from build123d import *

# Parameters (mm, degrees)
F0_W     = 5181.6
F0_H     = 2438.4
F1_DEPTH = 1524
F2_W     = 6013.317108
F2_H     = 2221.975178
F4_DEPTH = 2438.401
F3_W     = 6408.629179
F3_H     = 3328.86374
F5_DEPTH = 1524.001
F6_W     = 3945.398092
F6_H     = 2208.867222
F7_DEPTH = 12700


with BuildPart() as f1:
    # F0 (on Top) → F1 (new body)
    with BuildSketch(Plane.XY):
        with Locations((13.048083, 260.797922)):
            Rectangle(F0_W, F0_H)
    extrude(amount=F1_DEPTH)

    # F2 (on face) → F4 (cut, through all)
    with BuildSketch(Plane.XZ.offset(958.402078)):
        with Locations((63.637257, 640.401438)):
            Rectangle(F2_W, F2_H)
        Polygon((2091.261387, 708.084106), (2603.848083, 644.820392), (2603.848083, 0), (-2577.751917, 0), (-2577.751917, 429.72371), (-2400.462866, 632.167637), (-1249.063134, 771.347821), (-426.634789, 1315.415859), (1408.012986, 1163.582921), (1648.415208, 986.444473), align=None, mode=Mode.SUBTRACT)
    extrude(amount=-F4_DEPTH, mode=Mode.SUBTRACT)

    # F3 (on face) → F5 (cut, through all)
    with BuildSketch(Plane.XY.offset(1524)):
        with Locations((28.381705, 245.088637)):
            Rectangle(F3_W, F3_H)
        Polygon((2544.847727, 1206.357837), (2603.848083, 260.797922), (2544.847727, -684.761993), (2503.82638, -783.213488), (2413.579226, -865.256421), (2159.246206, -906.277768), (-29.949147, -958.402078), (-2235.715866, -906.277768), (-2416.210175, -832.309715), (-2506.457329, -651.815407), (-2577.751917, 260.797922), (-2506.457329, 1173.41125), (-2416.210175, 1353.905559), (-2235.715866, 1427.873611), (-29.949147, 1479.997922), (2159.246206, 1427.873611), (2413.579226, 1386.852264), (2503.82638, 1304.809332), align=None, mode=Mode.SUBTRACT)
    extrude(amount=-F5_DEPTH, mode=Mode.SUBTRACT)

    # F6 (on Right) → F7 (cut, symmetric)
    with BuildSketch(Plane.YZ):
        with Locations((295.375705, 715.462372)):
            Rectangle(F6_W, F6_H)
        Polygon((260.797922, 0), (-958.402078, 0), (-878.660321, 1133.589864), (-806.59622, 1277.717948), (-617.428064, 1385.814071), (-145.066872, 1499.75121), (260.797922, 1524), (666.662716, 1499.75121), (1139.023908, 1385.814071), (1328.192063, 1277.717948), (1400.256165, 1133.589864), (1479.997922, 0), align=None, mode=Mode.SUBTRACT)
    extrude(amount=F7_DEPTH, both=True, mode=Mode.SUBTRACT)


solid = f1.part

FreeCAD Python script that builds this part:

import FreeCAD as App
import Part
import Sketcher

V = App.Vector
Q = App.Units.Quantity

doc = App.newDocument("Part")
body = doc.addObject("PartDesign::Body", "Body")

# Sketch on XY plane
sketch1 = doc.addObject("Sketcher::SketchObject", "Sketch")
body.addObject(sketch1)
sketch1.AttachmentSupport = (doc.XY_Plane, [""])
sketch1.MapMode = "FlatFace"
sketch1.addGeometry(Part.LineSegment(V(-2578, 1480, 0), V(-2578, -958, 0)), False)
sketch1.addGeometry(Part.LineSegment(V(-2578, -958, 0), V(2604, -958, 0)), False)
sketch1.addGeometry(Part.LineSegment(V(2604, -958, 0), V(2604, 1480, 0)), False)
sketch1.addGeometry(Part.LineSegment(V(2604, 1480, 0), V(-2578, 1480, 0)), False)
sketch1.addConstraint(Sketcher.Constraint("Coincident", 0, 2, 1, 1))
sketch1.addConstraint(Sketcher.Constraint("Coincident", 1, 2, 2, 1))
sketch1.addConstraint(Sketcher.Constraint("Coincident", 2, 2, 3, 1))
sketch1.addConstraint(Sketcher.Constraint("Coincident", 3, 2, 0, 1))
sketch1.addConstraint(Sketcher.Constraint("Vertical", 0))
sketch1.addConstraint(Sketcher.Constraint("Horizontal", 1))
sketch1.addConstraint(Sketcher.Constraint("Vertical", 2))
sketch1.addConstraint(Sketcher.Constraint("Horizontal", 3))
sketch1.addConstraint(Sketcher.Constraint("DistanceX", 1, 1, 1, 2, Q("204 in")))
sketch1.addConstraint(Sketcher.Constraint("DistanceY", 0, 2, 0, 1, Q("96 in")))
sketch1.addConstraint(Sketcher.Constraint("DistanceY", 0, 2, -1, 1, 958.402078))
sketch1.addConstraint(Sketcher.Constraint("DistanceX", 0, 2, -1, 1, 2577.751917))
pad1 = doc.addObject("PartDesign::Pad", "Pad")
body.addObject(pad1)
pad1.Profile = sketch1
pad1.Length = Q("60 in")

# Sketch on XZ plane
sketch2 = doc.addObject("Sketcher::SketchObject", "Sketch001")
body.addObject(sketch2)
sketch2.AttachmentSupport = (doc.XZ_Plane, [""])
sketch2.MapMode = "FlatFace"
sketch2.AttachmentOffset = App.Placement(V(0, 0, 958.402078), App.Rotation())
sketch2.addGeometry(Part.LineSegment(V(-2943, 1751, 0), V(-2943, -471, 0)), False)
sketch2.addGeometry(Part.LineSegment(V(-2943, -471, 0), V(3070, -471, 0)), False)
sketch2.addGeometry(Part.LineSegment(V(3070, -471, 0), V(3070, 1751, 0)), False)
sketch2.addGeometry(Part.LineSegment(V(3070, 1751, 0), V(-2943, 1751, 0)), False)
sketch2.addGeometry(Part.LineSegment(V(1648, 986, 0), V(2091, 708, 0)), False)
sketch2.addGeometry(Part.LineSegment(V(2091, 708, 0), V(2604, 645, 0)), False)
sketch2.addGeometry(Part.LineSegment(V(2604, 645, 0), V(2604, 0, 0)), False)
sketch2.addGeometry(Part.LineSegment(V(2604, 0, 0), V(-2578, 0, 0)), False)
sketch2.addGeometry(Part.LineSegment(V(-2578, 0, 0), V(-2578, 430, 0)), False)
sketch2.addGeometry(Part.LineSegment(V(-2578, 430, 0), V(-2400, 632, 0)), False)
sketch2.addGeometry(Part.LineSegment(V(-2400, 632, 0), V(-1249, 771, 0)), False)
sketch2.addGeometry(Part.LineSegment(V(-1249, 771, 0), V(-427, 1315, 0)), False)
sketch2.addGeometry(Part.LineSegment(V(-427, 1315, 0), V(1408, 1164, 0)), False)
sketch2.addGeometry(Part.LineSegment(V(1408, 1164, 0), V(1648, 986, 0)), False)
sketch2.addConstraint(Sketcher.Constraint("Coincident", 0, 2, 1, 1))
sketch2.addConstraint(Sketcher.Constraint("Coincident", 1, 2, 2, 1))
sketch2.addConstraint(Sketcher.Constraint("Coincident", 2, 2, 3, 1))
sketch2.addConstraint(Sketcher.Constraint("Coincident", 3, 2, 0, 1))
sketch2.addConstraint(Sketcher.Constraint("Coincident", 4, 2, 5, 1))
sketch2.addConstraint(Sketcher.Constraint("Coincident", 5, 2, 6, 1))
sketch2.addConstraint(Sketcher.Constraint("Coincident", 6, 2, 7, 1))
sketch2.addConstraint(Sketcher.Constraint("Coincident", 7, 2, 8, 1))
sketch2.addConstraint(Sketcher.Constraint("Coincident", 8, 2, 9, 1))
sketch2.addConstraint(Sketcher.Constraint("Coincident", 9, 2, 10, 1))
sketch2.addConstraint(Sketcher.Constraint("Coincident", 10, 2, 11, 1))
sketch2.addConstraint(Sketcher.Constraint("Coincident", 11, 2, 12, 1))
sketch2.addConstraint(Sketcher.Constraint("Coincident", 12, 2, 13, 1))
sketch2.addConstraint(Sketcher.Constraint("Coincident", 13, 2, 4, 1))
sketch2.addConstraint(Sketcher.Constraint("Vertical", 0))
sketch2.addConstraint(Sketcher.Constraint("Horizontal", 1))
sketch2.addConstraint(Sketcher.Constraint("Vertical", 2))
sketch2.addConstraint(Sketcher.Constraint("Horizontal", 3))
sketch2.addConstraint(Sketcher.Constraint("Vertical", 6))
sketch2.addConstraint(Sketcher.Constraint("Horizontal", 7))
sketch2.addConstraint(Sketcher.Constraint("Vertical", 8))
sketch2.addConstraint(Sketcher.Constraint("PointOnObject", 6, 2, -1))
sketch2.addConstraint(Sketcher.Constraint("DistanceX", 7, 2, 7, 1, Q("204 in")))
sketch2.addConstraint(Sketcher.Constraint("DistanceY", 6, 2, 6, 1, 644.820392))
sketch2.addConstraint(Sketcher.Constraint("DistanceY", 8, 1, 8, 2, 429.72371))
sketch2.addConstraint(Sketcher.Constraint("DistanceX", 12, 2, 4, 2, 683.248401))
sketch2.addConstraint(Sketcher.Constraint("Distance", 5, 516.475961))
sketch2.addConstraint(Sketcher.Constraint("Distance", 13, 298.615569))
sketch2.addConstraint(Sketcher.Constraint("DistanceX", 1, 1, 1, 2, 6013.317108))
sketch2.addConstraint(Sketcher.Constraint("DistanceY", 0, 2, 0, 1, 2221.975178))
sketch2.addConstraint(Sketcher.Constraint("DistanceY", 0, 2, -1, 1, 470.586151))
sketch2.addConstraint(Sketcher.Constraint("DistanceX", -1, 1, 1, 2, 3070.295811))
sketch2.addConstraint(Sketcher.Constraint("DistanceY", -1, 1, 10, 2, 771.347821))
sketch2.addConstraint(Sketcher.Constraint("DistanceX", 11, 2, -1, 1, 426.634789))
sketch2.addConstraint(Sketcher.Constraint("DistanceY", -1, 1, 11, 2, 1315.415859))
sketch2.addConstraint(Sketcher.Constraint("DistanceY", -1, 1, 12, 2, 1163.582921))
sketch2.addConstraint(Sketcher.Constraint("DistanceX", -1, 1, 13, 2, 1648.415208))
sketch2.addConstraint(Sketcher.Constraint("DistanceY", 4, 2, 2, 2, 1043.304921))
sketch2.addConstraint(Sketcher.Constraint("DistanceX", 5, 2, 2, 2, 466.447728))
sketch2.addConstraint(Sketcher.Constraint("DistanceX", 8, 2, 9, 2, 177.289051))
sketch2.addConstraint(Sketcher.Constraint("DistanceY", 0, 2, 9, 2, 1102.753788))
sketch2.addConstraint(Sketcher.Constraint("DistanceX", 9, 2, 10, 2, 1151.399732))
pocket1 = doc.addObject("PartDesign::Pocket", "Pocket")
body.addObject(pocket1)
pocket1.Profile = sketch2
pocket1.Type = "ThroughAll"

# Sketch on XY plane
sketch3 = doc.addObject("Sketcher::SketchObject", "Sketch002")
body.addObject(sketch3)
sketch3.AttachmentSupport = (doc.XY_Plane, [""])
sketch3.MapMode = "FlatFace"
sketch3.AttachmentOffset = App.Placement(V(0, 0, 60 * 25.4), App.Rotation())
sketch3.addGeometry(Part.LineSegment(V(-3176, 1910, 0), V(-3176, -1419, 0)), False)
sketch3.addGeometry(Part.LineSegment(V(-3176, -1419, 0), V(3233, -1419, 0)), False)
sketch3.addGeometry(Part.LineSegment(V(3233, -1419, 0), V(3233, 1910, 0)), False)
sketch3.addGeometry(Part.LineSegment(V(3233, 1910, 0), V(-3176, 1910, 0)), False)
sketch3.addGeometry(Part.LineSegment(V(2504, 1305, 0), V(2545, 1206, 0)), False)
sketch3.addGeometry(Part.LineSegment(V(2545, 1206, 0), V(2604, 261, 0)), False)
sketch3.addGeometry(Part.LineSegment(V(2604, 261, 0), V(2545, -685, 0)), False)
sketch3.addGeometry(Part.LineSegment(V(2545, -685, 0), V(2504, -783, 0)), False)
sketch3.addGeometry(Part.LineSegment(V(2504, -783, 0), V(2414, -865, 0)), False)
sketch3.addGeometry(Part.LineSegment(V(2414, -865, 0), V(2159, -906, 0)), False)
sketch3.addGeometry(Part.LineSegment(V(2159, -906, 0), V(-30, -958, 0)), False)
sketch3.addGeometry(Part.LineSegment(V(-30, -958, 0), V(-2236, -906, 0)), False)
sketch3.addGeometry(Part.LineSegment(V(-2236, -906, 0), V(-2416, -832, 0)), False)
sketch3.addGeometry(Part.LineSegment(V(-2416, -832, 0), V(-2506, -652, 0)), False)
sketch3.addGeometry(Part.LineSegment(V(-2506, -652, 0), V(-2578, 261, 0)), False)
sketch3.addGeometry(Part.LineSegment(V(-2578, 261, 0), V(-2506, 1173, 0)), False)
sketch3.addGeometry(Part.LineSegment(V(-2506, 1173, 0), V(-2416, 1354, 0)), False)
sketch3.addGeometry(Part.LineSegment(V(-2416, 1354, 0), V(-2236, 1428, 0)), False)
sketch3.addGeometry(Part.LineSegment(V(-2236, 1428, 0), V(-30, 1480, 0)), False)
sketch3.addGeometry(Part.LineSegment(V(-30, 1480, 0), V(2159, 1428, 0)), False)
sketch3.addGeometry(Part.LineSegment(V(2159, 1428, 0), V(2414, 1387, 0)), False)
sketch3.addGeometry(Part.LineSegment(V(2414, 1387, 0), V(2504, 1305, 0)), False)
sketch3.addConstraint(Sketcher.Constraint("Coincident", 0, 2, 1, 1))
sketch3.addConstraint(Sketcher.Constraint("Coincident", 1, 2, 2, 1))
sketch3.addConstraint(Sketcher.Constraint("Coincident", 2, 2, 3, 1))
sketch3.addConstraint(Sketcher.Constraint("Coincident", 3, 2, 0, 1))
sketch3.addConstraint(Sketcher.Constraint("Coincident", 4, 2, 5, 1))
sketch3.addConstraint(Sketcher.Constraint("Coincident", 5, 2, 6, 1))
sketch3.addConstraint(Sketcher.Constraint("Coincident", 6, 2, 7, 1))
sketch3.addConstraint(Sketcher.Constraint("Coincident", 7, 2, 8, 1))
sketch3.addConstraint(Sketcher.Constraint("Coincident", 8, 2, 9, 1))
sketch3.addConstraint(Sketcher.Constraint("Coincident", 9, 2, 10, 1))
sketch3.addConstraint(Sketcher.Constraint("Coincident", 10, 2, 11, 1))
sketch3.addConstraint(Sketcher.Constraint("Coincident", 11, 2, 12, 1))
sketch3.addConstraint(Sketcher.Constraint("Coincident", 12, 2, 13, 1))
sketch3.addConstraint(Sketcher.Constraint("Coincident", 13, 2, 14, 1))
sketch3.addConstraint(Sketcher.Constraint("Coincident", 14, 2, 15, 1))
sketch3.addConstraint(Sketcher.Constraint("Coincident", 15, 2, 16, 1))
sketch3.addConstraint(Sketcher.Constraint("Coincident", 16, 2, 17, 1))
sketch3.addConstraint(Sketcher.Constraint("Coincident", 17, 2, 18, 1))
sketch3.addConstraint(Sketcher.Constraint("Coincident", 18, 2, 19, 1))
sketch3.addConstraint(Sketcher.Constraint("Coincident", 19, 2, 20, 1))
sketch3.addConstraint(Sketcher.Constraint("Coincident", 20, 2, 21, 1))
sketch3.addConstraint(Sketcher.Constraint("Coincident", 21, 2, 4, 1))
sketch3.addConstraint(Sketcher.Constraint("Vertical", 0))
sketch3.addConstraint(Sketcher.Constraint("Horizontal", 1))
sketch3.addConstraint(Sketcher.Constraint("Vertical", 2))
sketch3.addConstraint(Sketcher.Constraint("Horizontal", 3))
sketch3.addConstraint(Sketcher.Constraint("Horizontal", 9, 2, 11, 2))
sketch3.addConstraint(Sketcher.Constraint("Horizontal", 5, 2, 14, 2))
sketch3.addConstraint(Sketcher.Constraint("Horizontal", 17, 2, 19, 2))
sketch3.addConstraint(Sketcher.Constraint("Vertical", 4, 2, 6, 2))
sketch3.addConstraint(Sketcher.Constraint("Vertical", 13, 2, 15, 2))
sketch3.addConstraint(Sketcher.Constraint("Vertical", 12, 2, 16, 2))
sketch3.addConstraint(Sketcher.Constraint("Vertical", 11, 2, 17, 2))
sketch3.addConstraint(Sketcher.Constraint("Vertical", 10, 2, 18, 2))
sketch3.addConstraint(Sketcher.Constraint("Vertical", 9, 2, 19, 2))
sketch3.addConstraint(Sketcher.Constraint("Vertical", 8, 2, 20, 2))
sketch3.addConstraint(Sketcher.Constraint("Vertical", 7, 2, 21, 2))
sketch3.addConstraint(Sketcher.Constraint("Equal", 5, 6))
sketch3.addConstraint(Sketcher.Constraint("Equal", 4, 7))
sketch3.addConstraint(Sketcher.Constraint("Equal", 14, 15))
sketch3.addConstraint(Sketcher.Constraint("Equal", 13, 16))
sketch3.addConstraint(Sketcher.Constraint("Equal", 12, 17))
sketch3.addConstraint(Sketcher.Constraint("Equal", 11, 18))
sketch3.addConstraint(Sketcher.Constraint("Equal", 9, 20))
sketch3.addConstraint(Sketcher.Constraint("DistanceY", 10, 2, 5, 2, Q("48 in")))
sketch3.addConstraint(Sketcher.Constraint("DistanceX", 8, 2, 5, 2, Q("7.4908999 in")))
sketch3.addConstraint(Sketcher.Constraint("DistanceY", 11, 2, 3, 2, Q("110.8581998 in")))
sketch3.addConstraint(Sketcher.Constraint("Distance", 10, 2189.8158))
sketch3.addConstraint(Sketcher.Constraint("DistanceX", 1, 1, 1, 2, 6408.629179))
sketch3.addConstraint(Sketcher.Constraint("DistanceY", 0, 2, 0, 1, 3328.86374))
sketch3.addConstraint(Sketcher.Constraint("DistanceY", 6, 2, 2, 2, 2594.2825))
sketch3.addConstraint(Sketcher.Constraint("DistanceX", 8, 2, 6, 2, 131.268501))
sketch3.addConstraint(Sketcher.Constraint("Distance", 12, 195.06273))
sketch3.addConstraint(Sketcher.Constraint("Distance", 13, 201.798771))
sketch3.addConstraint(Sketcher.Constraint("DistanceX", -1, 1, 7, 2, 2503.82638))
sketch3.addConstraint(Sketcher.Constraint("DistanceY", 7, 2, -1, 1, 783.213488))
sketch3.addConstraint(Sketcher.Constraint("DistanceY", 8, 2, -1, 1, 865.256421))
sketch3.addConstraint(Sketcher.Constraint("DistanceY", 9, 2, -1, 1, 906.277768))
sketch3.addConstraint(Sketcher.Constraint("DistanceY", 10, 2, -1, 1, 958.402078))
sketch3.addConstraint(Sketcher.Constraint("DistanceX", 13, 2, -1, 1, 2506.457329))
sketch3.addConstraint(Sketcher.Constraint("DistanceY", -1, 1, 15, 2, 1173.41125))
sketch3.addConstraint(Sketcher.Constraint("DistanceY", -1, 1, 16, 2, 1353.905559))
sketch3.addConstraint(Sketcher.Constraint("DistanceX", 3, 2, 4, 2, 5720.780612))
sketch3.addConstraint(Sketcher.Constraint("DistanceX", 9, 2, 8, 2, 254.33302))
sketch3.addConstraint(Sketcher.Constraint("DistanceX", 0, 2, 11, 2, 940.217018))
sketch3.addConstraint(Sketcher.Constraint("DistanceX", 14, 2, 13, 2, 71.294588))
pocket2 = doc.addObject("PartDesign::Pocket", "Pocket001")
body.addObject(pocket2)
pocket2.Profile = sketch3
pocket2.Type = "ThroughAll"

# Sketch on YZ plane
sketch4 = doc.addObject("Sketcher::SketchObject", "Sketch003")
body.addObject(sketch4)
sketch4.AttachmentSupport = (doc.YZ_Plane, [""])
sketch4.MapMode = "FlatFace"
sketch4.addGeometry(Part.LineSegment(V(-1677, 1820, 0), V(-1677, -389, 0)), False)
sketch4.addGeometry(Part.LineSegment(V(-1677, -389, 0), V(2268, -389, 0)), False)
sketch4.addGeometry(Part.LineSegment(V(2268, -389, 0), V(2268, 1820, 0)), False)
sketch4.addGeometry(Part.LineSegment(V(2268, 1820, 0), V(-1677, 1820, 0)), False)
sketch4.addGeometry(Part.LineSegment(V(1480, 0, 0), V(-958, 0, 0)), False)
sketch4.addGeometry(Part.LineSegment(V(-958, 0, 0), V(-879, 1134, 0)), False)
sketch4.addGeometry(Part.LineSegment(V(-879, 1134, 0), V(-807, 1278, 0)), False)
sketch4.addGeometry(Part.LineSegment(V(-807, 1278, 0), V(-617, 1386, 0)), False)
sketch4.addGeometry(Part.LineSegment(V(-617, 1386, 0), V(-145, 1500, 0)), False)
sketch4.addGeometry(Part.LineSegment(V(-145, 1500, 0), V(261, 1524, 0)), False)
sketch4.addGeometry(Part.LineSegment(V(261, 1524, 0), V(667, 1500, 0)), False)
sketch4.addGeometry(Part.LineSegment(V(667, 1500, 0), V(1139, 1386, 0)), False)
sketch4.addGeometry(Part.LineSegment(V(1139, 1386, 0), V(1328, 1278, 0)), False)
sketch4.addGeometry(Part.LineSegment(V(1328, 1278, 0), V(1400, 1134, 0)), False)
sketch4.addGeometry(Part.LineSegment(V(1400, 1134, 0), V(1480, 0, 0)), False)
sketch4.addConstraint(Sketcher.Constraint("Coincident", 0, 2, 1, 1))
sketch4.addConstraint(Sketcher.Constraint("Coincident", 1, 2, 2, 1))
sketch4.addConstraint(Sketcher.Constraint("Coincident", 2, 2, 3, 1))
sketch4.addConstraint(Sketcher.Constraint("Coincident", 3, 2, 0, 1))
sketch4.addConstraint(Sketcher.Constraint("Coincident", 4, 2, 5, 1))
sketch4.addConstraint(Sketcher.Constraint("Coincident", 5, 2, 6, 1))
sketch4.addConstraint(Sketcher.Constraint("Coincident", 6, 2, 7, 1))
sketch4.addConstraint(Sketcher.Constraint("Coincident", 7, 2, 8, 1))
sketch4.addConstraint(Sketcher.Constraint("Coincident", 8, 2, 9, 1))
sketch4.addConstraint(Sketcher.Constraint("Coincident", 9, 2, 10, 1))
sketch4.addConstraint(Sketcher.Constraint("Coincident", 10, 2, 11, 1))
sketch4.addConstraint(Sketcher.Constraint("Coincident", 11, 2, 12, 1))
sketch4.addConstraint(Sketcher.Constraint("Coincident", 12, 2, 13, 1))
sketch4.addConstraint(Sketcher.Constraint("Coincident", 13, 2, 14, 1))
sketch4.addConstraint(Sketcher.Constraint("Coincident", 14, 2, 4, 1))
sketch4.addConstraint(Sketcher.Constraint("Vertical", 0))
sketch4.addConstraint(Sketcher.Constraint("Horizontal", 1))
sketch4.addConstraint(Sketcher.Constraint("Vertical", 2))
sketch4.addConstraint(Sketcher.Constraint("Horizontal", 3))
sketch4.addConstraint(Sketcher.Constraint("Horizontal", 4))
sketch4.addConstraint(Sketcher.Constraint("PointOnObject", 4, 2, -1))
sketch4.addConstraint(Sketcher.Constraint("Horizontal", 8, 2, 10, 2))
sketch4.addConstraint(Sketcher.Constraint("Horizontal", 7, 2, 11, 2))
sketch4.addConstraint(Sketcher.Constraint("Horizontal", 6, 2, 12, 2))
sketch4.addConstraint(Sketcher.Constraint("Horizontal", 5, 2, 13, 2))
sketch4.addConstraint(Sketcher.Constraint("Equal", 9, 10))
sketch4.addConstraint(Sketcher.Constraint("Equal", 8, 11))
sketch4.addConstraint(Sketcher.Constraint("Equal", 7, 12))
sketch4.addConstraint(Sketcher.Constraint("Equal", 6, 13))
sketch4.addConstraint(Sketcher.Constraint("Equal", 5, 14))
sketch4.addConstraint(Sketcher.Constraint("DistanceX", 4, 2, 4, 1, Q("96 in")))
sketch4.addConstraint(Sketcher.Constraint("DistanceY", -1, 1, 9, 2, Q("60 in")))
sketch4.addConstraint(Sketcher.Constraint("DistanceY", 0, 2, 0, 1, 2208.867222))
sketch4.addConstraint(Sketcher.Constraint("DistanceX", 5, 2, 6, 2, 72.064101))
sketch4.addConstraint(Sketcher.Constraint("Distance", 7, 217.87465))
sketch4.addConstraint(Sketcher.Constraint("Distance", 8, 485.908188))
sketch4.addConstraint(Sketcher.Constraint("DistanceX", 1, 1, 1, 2, 3945.398092))
sketch4.addConstraint(Sketcher.Constraint("DistanceX", 0, 2, -1, 1, 1677.323341))
sketch4.addConstraint(Sketcher.Constraint("DistanceY", 0, 2, -1, 1, 388.971239))
sketch4.addConstraint(Sketcher.Constraint("DistanceX", 4, 2, -1, 1, 958.402078))
sketch4.addConstraint(Sketcher.Constraint("DistanceX", 5, 2, -1, 1, 878.660321))
sketch4.addConstraint(Sketcher.Constraint("DistanceY", -1, 1, 6, 2, 1277.717948))
sketch4.addConstraint(Sketcher.Constraint("DistanceY", -1, 1, 7, 2, 1385.814071))
sketch4.addConstraint(Sketcher.Constraint("DistanceX", 8, 2, -1, 1, 145.066872))
sketch4.addConstraint(Sketcher.Constraint("DistanceY", 5, 2, 3, 2, 686.306119))
pocket3 = doc.addObject("PartDesign::Pocket", "Pocket002")
body.addObject(pocket3)
pocket3.Profile = sketch4
pocket3.Length = Q("1000 in")
pocket3.Midplane = True

doc.recompute()
